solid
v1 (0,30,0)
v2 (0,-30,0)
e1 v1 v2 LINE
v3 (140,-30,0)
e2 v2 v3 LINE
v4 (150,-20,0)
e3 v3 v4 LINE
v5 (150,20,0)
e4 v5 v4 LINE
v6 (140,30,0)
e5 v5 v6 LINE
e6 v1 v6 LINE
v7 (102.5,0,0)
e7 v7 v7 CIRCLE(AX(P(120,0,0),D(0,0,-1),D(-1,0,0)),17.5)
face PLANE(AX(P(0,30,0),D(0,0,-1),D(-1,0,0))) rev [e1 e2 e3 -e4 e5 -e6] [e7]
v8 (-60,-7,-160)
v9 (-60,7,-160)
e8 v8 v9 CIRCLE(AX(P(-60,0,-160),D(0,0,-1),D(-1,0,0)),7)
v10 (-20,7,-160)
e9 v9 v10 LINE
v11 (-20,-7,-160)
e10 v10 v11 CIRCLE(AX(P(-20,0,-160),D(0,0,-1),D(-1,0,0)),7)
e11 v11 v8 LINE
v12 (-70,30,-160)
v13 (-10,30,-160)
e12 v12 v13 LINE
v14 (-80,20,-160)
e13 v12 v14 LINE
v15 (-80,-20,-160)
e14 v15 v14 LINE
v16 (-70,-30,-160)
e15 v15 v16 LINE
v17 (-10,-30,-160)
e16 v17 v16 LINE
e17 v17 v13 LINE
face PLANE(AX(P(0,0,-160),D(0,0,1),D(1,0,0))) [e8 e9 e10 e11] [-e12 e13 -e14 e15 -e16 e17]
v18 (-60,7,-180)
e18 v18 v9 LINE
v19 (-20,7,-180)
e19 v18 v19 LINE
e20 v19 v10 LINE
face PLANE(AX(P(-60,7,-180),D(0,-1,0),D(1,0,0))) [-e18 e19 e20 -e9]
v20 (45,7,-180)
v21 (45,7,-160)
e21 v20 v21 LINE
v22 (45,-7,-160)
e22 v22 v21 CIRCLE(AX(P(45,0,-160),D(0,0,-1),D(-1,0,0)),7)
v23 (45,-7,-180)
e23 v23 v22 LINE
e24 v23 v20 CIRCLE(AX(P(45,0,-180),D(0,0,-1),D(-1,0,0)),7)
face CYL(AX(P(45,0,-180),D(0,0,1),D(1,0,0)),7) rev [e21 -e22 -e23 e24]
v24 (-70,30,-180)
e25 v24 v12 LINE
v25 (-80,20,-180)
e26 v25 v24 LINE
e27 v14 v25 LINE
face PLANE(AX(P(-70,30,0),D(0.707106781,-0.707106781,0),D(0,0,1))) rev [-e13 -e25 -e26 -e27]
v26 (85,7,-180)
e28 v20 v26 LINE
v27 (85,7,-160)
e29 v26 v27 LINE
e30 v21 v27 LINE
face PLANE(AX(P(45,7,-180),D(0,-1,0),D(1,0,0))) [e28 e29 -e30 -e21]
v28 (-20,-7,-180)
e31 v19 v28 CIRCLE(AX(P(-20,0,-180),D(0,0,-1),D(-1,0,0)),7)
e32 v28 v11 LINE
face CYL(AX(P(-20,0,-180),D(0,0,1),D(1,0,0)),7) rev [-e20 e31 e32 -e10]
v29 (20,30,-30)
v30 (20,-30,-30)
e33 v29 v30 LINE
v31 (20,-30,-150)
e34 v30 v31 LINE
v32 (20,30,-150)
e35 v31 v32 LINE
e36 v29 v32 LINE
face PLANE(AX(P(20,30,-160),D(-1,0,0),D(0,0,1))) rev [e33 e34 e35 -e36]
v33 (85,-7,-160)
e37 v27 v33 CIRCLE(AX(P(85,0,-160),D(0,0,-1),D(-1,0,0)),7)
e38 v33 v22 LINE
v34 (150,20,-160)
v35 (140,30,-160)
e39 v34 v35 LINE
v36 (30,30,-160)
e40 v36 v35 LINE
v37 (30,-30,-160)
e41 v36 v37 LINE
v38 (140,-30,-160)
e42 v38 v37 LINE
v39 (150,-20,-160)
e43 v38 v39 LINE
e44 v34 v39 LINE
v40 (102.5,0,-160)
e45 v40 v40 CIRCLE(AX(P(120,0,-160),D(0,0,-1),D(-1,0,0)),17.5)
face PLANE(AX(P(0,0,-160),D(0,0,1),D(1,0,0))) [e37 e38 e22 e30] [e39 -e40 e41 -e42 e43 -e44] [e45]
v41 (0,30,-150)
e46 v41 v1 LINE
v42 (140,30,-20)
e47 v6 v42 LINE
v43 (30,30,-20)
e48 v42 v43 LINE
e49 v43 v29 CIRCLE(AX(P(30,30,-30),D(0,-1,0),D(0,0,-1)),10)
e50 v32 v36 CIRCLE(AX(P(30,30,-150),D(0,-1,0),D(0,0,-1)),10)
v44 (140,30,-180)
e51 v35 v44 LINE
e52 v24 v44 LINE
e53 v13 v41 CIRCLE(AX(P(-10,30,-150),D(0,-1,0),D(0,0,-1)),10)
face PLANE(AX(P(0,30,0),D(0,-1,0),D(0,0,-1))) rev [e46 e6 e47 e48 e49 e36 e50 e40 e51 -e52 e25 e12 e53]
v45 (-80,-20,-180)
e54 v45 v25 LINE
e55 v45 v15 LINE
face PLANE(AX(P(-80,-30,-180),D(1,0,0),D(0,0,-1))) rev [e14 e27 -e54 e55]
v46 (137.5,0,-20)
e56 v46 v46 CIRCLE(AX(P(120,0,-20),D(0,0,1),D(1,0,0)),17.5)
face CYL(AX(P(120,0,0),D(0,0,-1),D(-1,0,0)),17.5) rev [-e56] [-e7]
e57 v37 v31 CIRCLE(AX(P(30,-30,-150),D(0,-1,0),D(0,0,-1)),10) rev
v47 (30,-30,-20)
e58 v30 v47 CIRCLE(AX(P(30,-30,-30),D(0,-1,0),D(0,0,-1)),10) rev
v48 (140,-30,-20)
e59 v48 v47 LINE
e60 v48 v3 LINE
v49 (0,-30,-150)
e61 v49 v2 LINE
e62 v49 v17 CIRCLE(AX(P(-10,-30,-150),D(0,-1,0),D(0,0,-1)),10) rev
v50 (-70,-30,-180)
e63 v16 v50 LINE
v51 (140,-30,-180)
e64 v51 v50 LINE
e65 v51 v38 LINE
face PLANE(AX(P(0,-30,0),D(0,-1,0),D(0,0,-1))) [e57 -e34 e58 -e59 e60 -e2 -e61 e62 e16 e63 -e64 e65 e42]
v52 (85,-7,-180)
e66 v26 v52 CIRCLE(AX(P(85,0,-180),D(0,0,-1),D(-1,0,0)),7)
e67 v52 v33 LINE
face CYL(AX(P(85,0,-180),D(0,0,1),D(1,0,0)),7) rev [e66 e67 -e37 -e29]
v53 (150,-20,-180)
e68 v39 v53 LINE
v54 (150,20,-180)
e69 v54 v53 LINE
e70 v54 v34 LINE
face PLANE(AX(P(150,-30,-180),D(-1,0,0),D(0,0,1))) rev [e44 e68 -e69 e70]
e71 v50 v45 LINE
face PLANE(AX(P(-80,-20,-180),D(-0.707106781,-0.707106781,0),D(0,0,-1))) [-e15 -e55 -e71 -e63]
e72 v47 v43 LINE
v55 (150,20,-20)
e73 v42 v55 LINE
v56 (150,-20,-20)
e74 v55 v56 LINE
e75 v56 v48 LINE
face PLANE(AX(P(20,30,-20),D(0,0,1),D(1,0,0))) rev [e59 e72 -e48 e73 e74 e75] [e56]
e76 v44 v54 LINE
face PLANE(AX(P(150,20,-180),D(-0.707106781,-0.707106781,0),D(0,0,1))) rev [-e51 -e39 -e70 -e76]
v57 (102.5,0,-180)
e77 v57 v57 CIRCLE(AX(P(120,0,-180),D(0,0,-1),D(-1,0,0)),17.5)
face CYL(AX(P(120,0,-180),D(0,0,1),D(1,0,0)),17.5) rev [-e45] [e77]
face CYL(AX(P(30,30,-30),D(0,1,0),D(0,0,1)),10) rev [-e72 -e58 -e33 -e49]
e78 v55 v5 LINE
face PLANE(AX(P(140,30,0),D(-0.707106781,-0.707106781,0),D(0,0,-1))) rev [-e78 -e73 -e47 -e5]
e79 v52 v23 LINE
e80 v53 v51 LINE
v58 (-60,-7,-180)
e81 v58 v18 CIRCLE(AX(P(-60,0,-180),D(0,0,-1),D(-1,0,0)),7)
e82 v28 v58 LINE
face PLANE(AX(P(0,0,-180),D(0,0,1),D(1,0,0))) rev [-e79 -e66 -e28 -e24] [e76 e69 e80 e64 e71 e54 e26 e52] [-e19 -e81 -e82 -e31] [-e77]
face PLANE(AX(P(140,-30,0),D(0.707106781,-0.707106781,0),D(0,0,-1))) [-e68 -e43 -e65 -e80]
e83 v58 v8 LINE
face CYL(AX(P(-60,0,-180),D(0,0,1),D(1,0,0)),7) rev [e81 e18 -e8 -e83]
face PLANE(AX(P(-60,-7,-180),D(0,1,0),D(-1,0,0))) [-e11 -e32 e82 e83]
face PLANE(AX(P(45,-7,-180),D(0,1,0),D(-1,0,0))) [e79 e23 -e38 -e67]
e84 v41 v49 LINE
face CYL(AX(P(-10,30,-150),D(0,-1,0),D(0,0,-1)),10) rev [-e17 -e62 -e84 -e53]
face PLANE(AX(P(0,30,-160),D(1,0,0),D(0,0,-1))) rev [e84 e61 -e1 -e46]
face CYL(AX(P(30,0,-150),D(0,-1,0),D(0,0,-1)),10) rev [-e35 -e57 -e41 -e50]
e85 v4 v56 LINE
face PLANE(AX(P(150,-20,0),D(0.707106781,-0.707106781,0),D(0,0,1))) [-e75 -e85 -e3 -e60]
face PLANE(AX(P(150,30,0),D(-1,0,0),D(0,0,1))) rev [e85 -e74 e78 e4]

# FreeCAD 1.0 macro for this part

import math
import FreeCAD as App
import Part
import Sketcher


def edges_at(feature, points):
    """Names of the edges that pass closest to the given points."""
    edges = feature.Shape.Edges
    near = lambda p: min(range(len(edges)), key=lambda i: edges[i].distToShape(Part.Vertex(*p))[0])
    return sorted({f"Edge{near(p) + 1}" for p in points})


def add_polygon(sketch, points):
    """Adds a closed chain of lines whose ends are joined by coincident constraints."""
    first, n = sketch.GeometryCount, len(points)
    for a, b in zip(points, points[1:] + points[:1]):
        sketch.addGeometry(Part.LineSegment(App.Vector(*a, 0), App.Vector(*b, 0)), False)
    for i in range(n):
        sketch.addConstraint(Sketcher.Constraint("Coincident", first + i, 2, first + (i + 1) % n, 1))

doc = App.newDocument("Part")
body = doc.addObject("PartDesign::Body", "Body")

sketch1 = body.newObject("Sketcher::SketchObject", "Sketch")
sketch1.AttachmentSupport = (doc.getObject("XZ_Plane"), [""])
sketch1.MapMode = "FlatFace"
add_polygon(sketch1, [(20, -160), (0, -160), (0, 0), (150, 0), (150, -20), (20, -20)])
sketch1.addConstraint(Sketcher.Constraint("Horizontal", 0))
sketch1.addConstraint(Sketcher.Constraint("Vertical", 1))
sketch1.addConstraint(Sketcher.Constraint("Horizontal", 2))
sketch1.addConstraint(Sketcher.Constraint("Vertical", 3))
sketch1.addConstraint(Sketcher.Constraint("Horizontal", 4))
sketch1.addConstraint(Sketcher.Constraint("Vertical", 5))
sketch1.addConstraint(Sketcher.Constraint("Coincident", 1, 2, -1, 1))
sketch1.addConstraint(Sketcher.Constraint("Equal", 0, 3))
sketch1.addConstraint(Sketcher.Constraint("DistanceX", 0, 2, 0, 1, 20.0))
sketch1.addConstraint(Sketcher.Constraint("DistanceX", 2, 1, 2, 2, 150.0))
sketch1.addConstraint(Sketcher.Constraint("DistanceY", 1, 1, 1, 2, 160.0))
pad1 = body.newObject("PartDesign::Pad", "Pad")
pad1.Profile = sketch1
pad1.Length = 60
pad1.Midplane = True

sketch2 = body.newObject("Sketcher::SketchObject", "Sketch001")
sketch2.AttachmentSupport = (doc.getObject("XY_Plane"), [""])
sketch2.MapMode = "FlatFace"
sketch2.AttachmentOffset = App.Placement(App.Vector(0, 0, -160), App.Rotation())
add_polygon(sketch2, [(150, 30), (150, -30), (-80, -30), (-80, 30)])
sketch2.addGeometry(Part.Circle(App.Vector(120, 0, 0), App.Vector(0, 0, 1), 17.5), False)
sketch2.addGeometry(Part.ArcOfCircle(Part.Circle(App.Vector(45, 0, 0), App.Vector(0, 0, 1), 7), math.radians(90), math.radians(270)), False)
sketch2.addGeometry(Part.LineSegment(App.Vector(45, -7, 0), App.Vector(85, -7, 0)), False)
sketch2.addGeometry(Part.ArcOfCircle(Part.Circle(App.Vector(85, 0, 0), App.Vector(0, 0, 1), 7), math.radians(-90), math.radians(90)), False)
sketch2.addGeometry(Part.LineSegment(App.Vector(85, 7, 0), App.Vector(45, 7, 0)), False)
sketch2.addGeometry(Part.ArcOfCircle(Part.Circle(App.Vector(-60, 0, 0), App.Vector(0, 0, 1), 7), math.radians(90), math.radians(270)), False)
sketch2.addGeometry(Part.LineSegment(App.Vector(-60, -7, 0), App.Vector(-20, -7, 0)), False)
sketch2.addGeometry(Part.ArcOfCircle(Part.Circle(App.Vector(-20, 0, 0), App.Vector(0, 0, 1), 7), math.radians(-90), math.radians(90)), False)
sketch2.addGeometry(Part.LineSegment(App.Vector(-20, 7, 0), App.Vector(-60, 7, 0)), False)
sketch2.addConstraint(Sketcher.Constraint("Tangent", 5, 2, 6, 1))
sketch2.addConstraint(Sketcher.Constraint("Tangent", 6, 2, 7, 1))
sketch2.addConstraint(Sketcher.Constraint("Tangent", 7, 2, 8, 1))
sketch2.addConstraint(Sketcher.Constraint("Tangent", 8, 2, 5, 1))
sketch2.addConstraint(Sketcher.Constraint("Tangent", 9, 2, 10, 1))
sketch2.addConstraint(Sketcher.Constraint("Tangent", 10, 2, 11, 1))
sketch2.addConstraint(Sketcher.Constraint("Tangent", 11, 2, 12, 1))
sketch2.addConstraint(Sketcher.Constraint("Tangent", 12, 2, 9, 1))
sketch2.addConstraint(Sketcher.Constraint("Vertical", 0))
sketch2.addConstraint(Sketcher.Constraint("Horizontal", 1))
sketch2.addConstraint(Sketcher.Constraint("Vertical", 2))
sketch2.addConstraint(Sketcher.Constraint("Horizontal", 3))
sketch2.addConstraint(Sketcher.Constraint("Horizontal", 6))
sketch2.addConstraint(Sketcher.Constraint("Horizontal", 8))
sketch2.addConstraint(Sketcher.Constraint("Horizontal", 10))
sketch2.addConstraint(Sketcher.Constraint("Horizontal", 12))
sketch2.addConstraint(Sketcher.Constraint("Equal", 7, 9))
sketch2.addConstraint(Sketcher.Constraint("PointOnObject", 4, 3, -1))
sketch2.addConstraint(Sketcher.Constraint("PointOnObject", 5, 3, -1))
sketch2.addConstraint(Sketcher.Constraint("PointOnObject", 9, 3, -1))
sketch2.addConstraint(Sketcher.Constraint("Equal", 8, 10))
sketch2.addConstraint(Sketcher.Constraint("Diameter", 4, 35.0))
sketch2.addConstraint(Sketcher.Constraint("Radius", 5, 7.0))
sketch2.addConstraint(Sketcher.Constraint("DistanceX", 1, 2, 1, 1, 230.0))
sketch2.addConstraint(Sketcher.Constraint("DistanceX", 6, 1, 6, 2, 40.0))
sketch2.addConstraint(Sketcher.Constraint("DistanceY", 0, 2, 0, 1, 60.0))
sketch2.addConstraint(Sketcher.Constraint("DistanceX", -1, 1, 4, 3, 120.0))
sketch2.addConstraint(Sketcher.Constraint("DistanceX", -1, 1, 5, 3, 45.0))
sketch2.addConstraint(Sketcher.Constraint("DistanceX", 9, 3, -1, 1, 60.0))
sketch2.addConstraint(Sketcher.Constraint("DistanceX", -1, 1, 0, 2, 150.0))
sketch2.addConstraint(Sketcher.Constraint("DistanceY", 0, 2, -1, 1, 30.0))
pad2 = body.newObject("PartDesign::Pad", "Pad001")
pad2.Profile = sketch2
pad2.Length = 20
pad2.Reversed = True
doc.recompute()

fillet = body.newObject("PartDesign::Fillet", "Fillet")
fillet.Base = (pad2, edges_at(pad2, [(20, 0, -160), (20, 0, -20), (0, 0, -160)]))
fillet.Radius = 10
doc.recompute()

chamfer = body.newObject("PartDesign::Chamfer", "Chamfer")
chamfer.Base = (fillet, edges_at(fillet, [
    (150, 30, -10),
    (150, 30, -170),
    (150, -30, -170),
    (-80, -30, -170),
    (-80, 30, -170),
    (150, -30, -10),
]))
chamfer.Size = 10

sketch3 = body.newObject("Sketcher::SketchObject", "Sketch002")
sketch3.AttachmentSupport = (doc.getObject("XY_Plane"), [""])
sketch3.MapMode = "FlatFace"
sketch3.AttachmentOffset = App.Placement(App.Vector(0, 0, -180), App.Rotation())
sketch3.addGeometry(Part.Circle(App.Vector(120, 0, 0), App.Vector(0, 0, 1), 17.5), False)
sketch3.addConstraint(Sketcher.Constraint("PointOnObject", 0, 3, -1))
sketch3.addConstraint(Sketcher.Constraint("Diameter", 0, 35.0))
sketch3.addConstraint(Sketcher.Constraint("DistanceX", -1, 1, 0, 3, 120.0))
pocket1 = body.newObject("PartDesign::Pocket", "Pocket")
pocket1.Profile = sketch3
pocket1.Type = "ThroughAll"
pocket1.Midplane = True

doc.recompute()
